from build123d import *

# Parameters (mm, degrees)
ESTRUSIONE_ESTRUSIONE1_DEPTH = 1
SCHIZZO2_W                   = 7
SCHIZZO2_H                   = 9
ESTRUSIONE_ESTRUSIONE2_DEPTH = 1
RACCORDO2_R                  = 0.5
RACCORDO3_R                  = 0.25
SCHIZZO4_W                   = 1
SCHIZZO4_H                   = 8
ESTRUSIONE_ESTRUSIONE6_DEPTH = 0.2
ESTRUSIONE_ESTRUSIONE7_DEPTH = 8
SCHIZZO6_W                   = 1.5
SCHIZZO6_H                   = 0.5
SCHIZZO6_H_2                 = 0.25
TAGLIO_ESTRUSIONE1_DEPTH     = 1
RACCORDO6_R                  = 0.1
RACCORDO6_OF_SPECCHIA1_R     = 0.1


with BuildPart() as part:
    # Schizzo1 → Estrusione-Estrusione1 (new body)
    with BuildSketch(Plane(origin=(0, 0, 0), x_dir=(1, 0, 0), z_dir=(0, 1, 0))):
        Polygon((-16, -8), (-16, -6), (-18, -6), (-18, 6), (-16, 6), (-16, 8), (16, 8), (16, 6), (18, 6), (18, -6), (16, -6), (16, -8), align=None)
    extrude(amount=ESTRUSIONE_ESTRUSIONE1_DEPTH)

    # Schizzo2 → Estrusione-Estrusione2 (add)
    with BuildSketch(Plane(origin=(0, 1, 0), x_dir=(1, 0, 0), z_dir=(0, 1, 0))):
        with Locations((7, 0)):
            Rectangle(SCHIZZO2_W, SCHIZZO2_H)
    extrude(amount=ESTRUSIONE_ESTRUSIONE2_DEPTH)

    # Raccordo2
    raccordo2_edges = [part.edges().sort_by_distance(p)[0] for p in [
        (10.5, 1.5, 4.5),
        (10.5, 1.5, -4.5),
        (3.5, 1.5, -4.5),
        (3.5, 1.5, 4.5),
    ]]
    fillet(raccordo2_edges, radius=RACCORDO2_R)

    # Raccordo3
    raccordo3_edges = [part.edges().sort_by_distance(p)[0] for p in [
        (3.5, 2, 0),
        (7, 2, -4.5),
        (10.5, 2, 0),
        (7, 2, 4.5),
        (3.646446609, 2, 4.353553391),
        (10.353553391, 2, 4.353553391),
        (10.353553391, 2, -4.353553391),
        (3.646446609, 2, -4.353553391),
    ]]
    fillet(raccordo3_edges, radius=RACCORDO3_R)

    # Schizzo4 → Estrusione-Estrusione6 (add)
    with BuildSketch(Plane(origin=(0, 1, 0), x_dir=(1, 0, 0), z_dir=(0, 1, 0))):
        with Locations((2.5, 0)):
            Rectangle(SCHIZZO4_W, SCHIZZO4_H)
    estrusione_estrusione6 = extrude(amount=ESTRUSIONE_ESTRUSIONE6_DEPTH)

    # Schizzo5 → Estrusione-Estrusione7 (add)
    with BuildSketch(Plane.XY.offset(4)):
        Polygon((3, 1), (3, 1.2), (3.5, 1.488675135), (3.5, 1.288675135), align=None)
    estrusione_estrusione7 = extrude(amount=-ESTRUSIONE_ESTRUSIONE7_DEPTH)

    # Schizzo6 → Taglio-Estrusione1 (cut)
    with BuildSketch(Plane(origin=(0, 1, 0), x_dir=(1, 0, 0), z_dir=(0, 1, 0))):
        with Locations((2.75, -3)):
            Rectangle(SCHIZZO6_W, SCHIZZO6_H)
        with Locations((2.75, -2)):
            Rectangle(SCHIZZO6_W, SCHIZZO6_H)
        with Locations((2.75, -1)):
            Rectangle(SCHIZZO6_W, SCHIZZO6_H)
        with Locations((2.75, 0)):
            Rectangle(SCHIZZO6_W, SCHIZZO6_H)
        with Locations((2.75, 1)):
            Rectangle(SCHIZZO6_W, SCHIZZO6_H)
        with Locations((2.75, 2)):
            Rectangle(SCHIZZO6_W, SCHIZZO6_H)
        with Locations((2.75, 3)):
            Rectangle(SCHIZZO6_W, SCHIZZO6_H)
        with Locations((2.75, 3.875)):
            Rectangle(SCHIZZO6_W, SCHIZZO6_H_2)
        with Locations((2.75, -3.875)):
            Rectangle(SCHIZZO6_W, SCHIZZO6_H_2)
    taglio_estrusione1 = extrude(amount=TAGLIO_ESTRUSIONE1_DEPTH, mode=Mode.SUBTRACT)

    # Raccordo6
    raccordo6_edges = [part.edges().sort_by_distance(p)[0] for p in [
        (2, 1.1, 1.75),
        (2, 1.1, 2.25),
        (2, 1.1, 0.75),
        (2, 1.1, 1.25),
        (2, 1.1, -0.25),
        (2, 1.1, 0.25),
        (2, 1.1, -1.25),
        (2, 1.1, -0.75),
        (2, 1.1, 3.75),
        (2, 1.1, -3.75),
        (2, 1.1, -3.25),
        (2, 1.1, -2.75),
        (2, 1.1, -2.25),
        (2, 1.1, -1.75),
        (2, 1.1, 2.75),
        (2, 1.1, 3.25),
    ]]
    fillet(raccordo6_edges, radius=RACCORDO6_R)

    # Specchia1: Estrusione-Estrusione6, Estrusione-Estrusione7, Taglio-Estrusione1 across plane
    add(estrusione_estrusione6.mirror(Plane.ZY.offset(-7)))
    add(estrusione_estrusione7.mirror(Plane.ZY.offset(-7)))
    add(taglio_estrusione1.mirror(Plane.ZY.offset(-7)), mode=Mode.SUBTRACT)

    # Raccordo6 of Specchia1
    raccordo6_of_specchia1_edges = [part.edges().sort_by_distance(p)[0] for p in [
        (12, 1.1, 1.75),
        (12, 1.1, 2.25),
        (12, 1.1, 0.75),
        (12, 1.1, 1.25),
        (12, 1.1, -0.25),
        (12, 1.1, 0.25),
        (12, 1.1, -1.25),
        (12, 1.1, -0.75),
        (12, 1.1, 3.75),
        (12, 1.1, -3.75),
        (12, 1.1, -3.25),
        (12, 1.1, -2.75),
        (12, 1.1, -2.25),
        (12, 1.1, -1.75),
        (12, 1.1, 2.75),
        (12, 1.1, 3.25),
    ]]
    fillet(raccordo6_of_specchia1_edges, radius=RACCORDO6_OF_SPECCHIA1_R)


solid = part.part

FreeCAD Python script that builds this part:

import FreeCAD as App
import Part
import Sketcher
Q = App.Units.Quantity


def edges_at(feature, points):
    """Names of the edges that pass closest to the given points."""
    edges = feature.Shape.Edges
    near = lambda p: min(range(len(edges)), key=lambda i: edges[i].distToShape(Part.Vertex(*p))[0])
    return sorted({f"Edge{near(p) + 1}" for p in points})

doc = App.newDocument("Part")
body = doc.addObject("PartDesign::Body", "Body")

sketch1 = body.newObject("Sketcher::SketchObject", "Sketch")
sketch1.AttachmentSupport = (doc.getObject("XZ_Plane"), [""])
sketch1.MapMode = "FlatFace"
sketch1.addGeometry([
    Part.LineSegment(App.Vector(-16, 6, 0), App.Vector(-16, 8, 0)),
    Part.LineSegment(App.Vector(-16, 8, 0), App.Vector(16, 8, 0)),
    Part.LineSegment(App.Vector(16, 8, 0), App.Vector(16, 6, 0)),
    Part.LineSegment(App.Vector(16, 6, 0), App.Vector(18, 6, 0)),
    Part.LineSegment(App.Vector(18, 6, 0), App.Vector(18, -6, 0)),
    Part.LineSegment(App.Vector(18, -6, 0), App.Vector(16, -6, 0)),
    Part.LineSegment(App.Vector(16, -6, 0), App.Vector(16, -8, 0)),
    Part.LineSegment(App.Vector(16, -8, 0), App.Vector(-16, -8, 0)),
    Part.LineSegment(App.Vector(-16, -8, 0), App.Vector(-16, -6, 0)),
    Part.LineSegment(App.Vector(-16, -6, 0), App.Vector(-18, -6, 0)),
    Part.LineSegment(App.Vector(-18, -6, 0), App.Vector(-18, 6, 0)),
    Part.LineSegment(App.Vector(-18, 6, 0), App.Vector(-16, 6, 0)),
], False)
sketch1.addConstraint([
    Sketcher.Constraint("Coincident", 0, 2, 1, 1),
    Sketcher.Constraint("Coincident", 1, 2, 2, 1),
    Sketcher.Constraint("Coincident", 2, 2, 3, 1),
    Sketcher.Constraint("Coincident", 3, 2, 4, 1),
    Sketcher.Constraint("Coincident", 4, 2, 5, 1),
    Sketcher.Constraint("Coincident", 5, 2, 6, 1),
    Sketcher.Constraint("Coincident", 6, 2, 7, 1),
    Sketcher.Constraint("Coincident", 7, 2, 8, 1),
    Sketcher.Constraint("Coincident", 8, 2, 9, 1),
    Sketcher.Constraint("Coincident", 9, 2, 10, 1),
    Sketcher.Constraint("Coincident", 10, 2, 11, 1),
    Sketcher.Constraint("Coincident", 11, 2, 0, 1),
    Sketcher.Constraint("Vertical", 0),
    Sketcher.Constraint("Horizontal", 1),
    Sketcher.Constraint("Vertical", 2),
    Sketcher.Constraint("Horizontal", 3),
    Sketcher.Constraint("Vertical", 4),
    Sketcher.Constraint("Horizontal", 5),
    Sketcher.Constraint("Vertical", 6),
    Sketcher.Constraint("Horizontal", 7),
    Sketcher.Constraint("Vertical", 8),
    Sketcher.Constraint("Horizontal", 9),
    Sketcher.Constraint("Vertical", 10),
    Sketcher.Constraint("Horizontal", 11),
    Sketcher.Constraint("Symmetric", 0, 2, 6, 2, -1, 1),
    Sketcher.Constraint("Symmetric", 2, 2, 8, 2, -1, 1),
    Sketcher.Constraint("Symmetric", 4, 2, 10, 2, -1, 1),
    Sketcher.Constraint("Symmetric", 5, 2, 8, 2, -2),
    Sketcher.Constraint("Equal", 11, 0),
    Sketcher.Constraint("DistanceX", 1, 1, 1, 2, Q("32 mm")),
    Sketcher.Constraint("DistanceX", 3, 1, 3, 2, Q("2 mm")),
    Sketcher.Constraint("DistanceY", 4, 2, 4, 1, Q("12 mm")),
])
pad1 = body.newObject("PartDesign::Pad", "Pad")
pad1.Profile = sketch1
pad1.Length = 1
pad1.Reversed = True

sketch2 = body.newObject("Sketcher::SketchObject", "Sketch001")
sketch2.AttachmentSupport = (doc.getObject("XZ_Plane"), [""])
sketch2.MapMode = "FlatFace"
sketch2.AttachmentOffset = App.Placement(App.Vector(0, 0, -1), App.Rotation())
sketch2.addGeometry([
    Part.LineSegment(App.Vector(4, -4, 0), App.Vector(4, 4, 0)),
    Part.LineSegment(App.Vector(4, 4, 0), App.Vector(10, 4, 0)),
    Part.LineSegment(App.Vector(10, 4, 0), App.Vector(10, -4, 0)),
    Part.LineSegment(App.Vector(10, -4, 0), App.Vector(4, -4, 0)),
], False)
sketch2.addConstraint([
    Sketcher.Constraint("Coincident", 0, 2, 1, 1),
    Sketcher.Constraint("Coincident", 1, 2, 2, 1),
    Sketcher.Constraint("Coincident", 2, 2, 3, 1),
    Sketcher.Constraint("Coincident", 3, 2, 0, 1),
    Sketcher.Constraint("Vertical", 0),
    Sketcher.Constraint("Horizontal", 1),
    Sketcher.Constraint("Vertical", 2),
    Sketcher.Constraint("Horizontal", 3),
    Sketcher.Constraint("DistanceX", 1, 1, 1, 2, Q("7 mm")),
    Sketcher.Constraint("DistanceY", 0, 1, 0, 2, Q("9 mm")),
    Sketcher.Constraint("DistanceX", -1, 1, 0, 2, Q("3.5 mm")),
    Sketcher.Constraint("DistanceY", -1, 1, 0, 2, Q("4.5 mm")),
])
pad2 = body.newObject("PartDesign::Pad", "Pad001")
pad2.Profile = sketch2
pad2.Length = 1
pad2.Reversed = True
doc.recompute()

fillet = body.newObject("PartDesign::Fillet", "Fillet")
fillet.Base = (pad2, edges_at(pad2, [
    (10.5, 1.5, 4.5),
    (10.5, 1.5, -4.5),
    (3.5, 1.5, -4.5),
    (3.5, 1.5, 4.5),
]))
fillet.Radius = 0.5
doc.recompute()

fillet2 = body.newObject("PartDesign::Fillet", "Fillet001")
fillet2.Base = (fillet, edges_at(fillet, [
    (3.5, 2, 0),
    (7, 2, -4.5),
    (10.5, 2, 0),
    (7, 2, 4.5),
    (3.646, 2, 4.354),
    (10.354, 2, 4.354),
    (10.354, 2, -4.354),
    (3.646, 2, -4.354),
]))
fillet2.Radius = 0.25

sketch3 = body.newObject("Sketcher::SketchObject", "Sketch002")
sketch3.AttachmentSupport = (doc.getObject("XZ_Plane"), [""])
sketch3.MapMode = "FlatFace"
sketch3.AttachmentOffset = App.Placement(App.Vector(0, 0, -1), App.Rotation())
sketch3.addGeometry([
    Part.LineSegment(App.Vector(2, -4, 0), App.Vector(2, 4, 0)),
    Part.LineSegment(App.Vector(2, 4, 0), App.Vector(3, 4, 0)),
    Part.LineSegment(App.Vector(3, 4, 0), App.Vector(3, -4, 0)),
    Part.LineSegment(App.Vector(3, -4, 0), App.Vector(2, -4, 0)),
], False)
sketch3.addConstraint([
    Sketcher.Constraint("Coincident", 0, 2, 1, 1),
    Sketcher.Constraint("Coincident", 1, 2, 2, 1),
    Sketcher.Constraint("Coincident", 2, 2, 3, 1),
    Sketcher.Constraint("Coincident", 3, 2, 0, 1),
    Sketcher.Constraint("Vertical", 0),
    Sketcher.Constraint("Horizontal", 1),
    Sketcher.Constraint("Vertical", 2),
    Sketcher.Constraint("Horizontal", 3),
    Sketcher.Constraint("DistanceX", 1, 1, 1, 2, Q("1 mm")),
    Sketcher.Constraint("DistanceY", 0, 1, 0, 2, Q("8 mm")),
    Sketcher.Constraint("DistanceX", -1, 1, 0, 2, Q("2 mm")),
    Sketcher.Constraint("DistanceY", -1, 1, 0, 2, Q("4 mm")),
])
pad3 = body.newObject("PartDesign::Pad", "Pad002")
pad3.Profile = sketch3
pad3.Length = 0.2
pad3.Reversed = True

sketch4 = body.newObject("Sketcher::SketchObject", "Sketch003")
sketch4.AttachmentSupport = (doc.getObject("XY_Plane"), [""])
sketch4.MapMode = "FlatFace"
sketch4.AttachmentOffset = App.Placement(App.Vector(0, 0, 4), App.Rotation())
sketch4.addGeometry([
    Part.LineSegment(App.Vector(3, 1.2, 0), App.Vector(3, 1, 0)),
    Part.LineSegment(App.Vector(3, 1, 0), App.Vector(3.5, 1.29, 0)),
    Part.LineSegment(App.Vector(3.5, 1.29, 0), App.Vector(3.5, 1.49, 0)),
    Part.LineSegment(App.Vector(3.5, 1.49, 0), App.Vector(3, 1.2, 0)),
], False)
sketch4.addConstraint([
    Sketcher.Constraint("Coincident", 0, 2, 1, 1),
    Sketcher.Constraint("Coincident", 1, 2, 2, 1),
    Sketcher.Constraint("Coincident", 2, 2, 3, 1),
    Sketcher.Constraint("Coincident", 3, 2, 0, 1),
    Sketcher.Constraint("Vertical", 0),
    Sketcher.Constraint("Vertical", 2),
    Sketcher.Constraint("Parallel", 1, 3),
    Sketcher.Constraint("Angle", 1, Q("30 deg")),
    Sketcher.Constraint("DistanceY", 0, 2, 0, 1, Q("0.2 mm")),
    Sketcher.Constraint("DistanceX", -1, 1, 0, 2, Q("3 mm")),
    Sketcher.Constraint("DistanceY", -1, 1, 0, 2, Q("1 mm")),
    Sketcher.Constraint("DistanceX", -1, 1, 1, 2, Q("3.5 mm")),
])
pad4 = body.newObject("PartDesign::Pad", "Pad003")
pad4.Profile = sketch4
pad4.Length = 8
pad4.Reversed = True

sketch5 = body.newObject("Sketcher::SketchObject", "Sketch004")
sketch5.AttachmentSupport = (doc.getObject("XZ_Plane"), [""])
sketch5.MapMode = "FlatFace"
sketch5.AttachmentOffset = App.Placement(App.Vector(0, 0, -1), App.Rotation())
sketch5.addGeometry([
    Part.LineSegment(App.Vector(2, 2.75, 0), App.Vector(2, 3.25, 0)),
    Part.LineSegment(App.Vector(2, 3.25, 0), App.Vector(3.5, 3.25, 0)),
    Part.LineSegment(App.Vector(3.5, 3.25, 0), App.Vector(3.5, 2.75, 0)),
    Part.LineSegment(App.Vector(3.5, 2.75, 0), App.Vector(2, 2.75, 0)),
    Part.LineSegment(App.Vector(2, 1.75, 0), App.Vector(2, 2.25, 0)),
    Part.LineSegment(App.Vector(2, 2.25, 0), App.Vector(3.5, 2.25, 0)),
    Part.LineSegment(App.Vector(3.5, 2.25, 0), App.Vector(3.5, 1.75, 0)),
    Part.LineSegment(App.Vector(3.5, 1.75, 0), App.Vector(2, 1.75, 0)),
    Part.LineSegment(App.Vector(2, 0.75, 0), App.Vector(2, 1.25, 0)),
    Part.LineSegment(App.Vector(2, 1.25, 0), App.Vector(3.5, 1.25, 0)),
    Part.LineSegment(App.Vector(3.5, 1.25, 0), App.Vector(3.5, 0.75, 0)),
    Part.LineSegment(App.Vector(3.5, 0.75, 0), App.Vector(2, 0.75, 0)),
    Part.LineSegment(App.Vector(2, -0.25, 0), App.Vector(2, 0.25, 0)),
    Part.LineSegment(App.Vector(2, 0.25, 0), App.Vector(3.5, 0.25, 0)),
    Part.LineSegment(App.Vector(3.5, 0.25, 0), App.Vector(3.5, -0.25, 0)),
    Part.LineSegment(App.Vector(3.5, -0.25, 0), App.Vector(2, -0.25, 0)),
    Part.LineSegment(App.Vector(2, -1.25, 0), App.Vector(2, -0.75, 0)),
    Part.LineSegment(App.Vector(2, -0.75, 0), App.Vector(3.5, -0.75, 0)),
    Part.LineSegment(App.Vector(3.5, -0.75, 0), App.Vector(3.5, -1.25, 0)),
    Part.LineSegment(App.Vector(3.5, -1.25, 0), App.Vector(2, -1.25, 0)),
    Part.LineSegment(App.Vector(2, -2.25, 0), App.Vector(2, -1.75, 0)),
    Part.LineSegment(App.Vector(2, -1.75, 0), App.Vector(3.5, -1.75, 0)),
    Part.LineSegment(App.Vector(3.5, -1.75, 0), App.Vector(3.5, -2.25, 0)),
    Part.LineSegment(App.Vector(3.5, -2.25, 0), App.Vector(2, -2.25, 0)),
    Part.LineSegment(App.Vector(2, -3.25, 0), App.Vector(2, -2.75, 0)),
    Part.LineSegment(App.Vector(2, -2.75, 0), App.Vector(3.5, -2.75, 0)),
    Part.LineSegment(App.Vector(3.5, -2.75, 0), App.Vector(3.5, -3.25, 0)),
    Part.LineSegment(App.Vector(3.5, -3.25, 0), App.Vector(2, -3.25, 0)),
    Part.LineSegment(App.Vector(2, -4, 0), App.Vector(2, -3.75, 0)),
    Part.LineSegment(App.Vector(2, -3.75, 0), App.Vector(3.5, -3.75, 0)),
    Part.LineSegment(App.Vector(3.5, -3.75, 0), App.Vector(3.5, -4, 0)),
    Part.LineSegment(App.Vector(3.5, -4, 0), App.Vector(2, -4, 0)),
    Part.LineSegment(App.Vector(2, 3.75, 0), App.Vector(2, 4, 0)),
    Part.LineSegment(App.Vector(2, 4, 0), App.Vector(3.5, 4, 0)),
    Part.LineSegment(App.Vector(3.5, 4, 0), App.Vector(3.5, 3.75, 0)),
    Part.LineSegment(App.Vector(3.5, 3.75, 0), App.Vector(2, 3.75, 0)),
], False)
sketch5.addConstraint([
    Sketcher.Constraint("Coincident", 0, 2, 1, 1),
    Sketcher.Constraint("Coincident", 1, 2, 2, 1),
    Sketcher.Constraint("Coincident", 2, 2, 3, 1),
    Sketcher.Constraint("Coincident", 3, 2, 0, 1),
    Sketcher.Constraint("Coincident", 4, 2, 5, 1),
    Sketcher.Constraint("Coincident", 5, 2, 6, 1),
    Sketcher.Constraint("Coincident", 6, 2, 7, 1),
    Sketcher.Constraint("Coincident", 7, 2, 4, 1),
    Sketcher.Constraint("Coincident", 8, 2, 9, 1),
    Sketcher.Constraint("Coincident", 9, 2, 10, 1),
    Sketcher.Constraint("Coincident", 10, 2, 11, 1),
    Sketcher.Constraint("Coincident", 11, 2, 8, 1),
    Sketcher.Constraint("Coincident", 12, 2, 13, 1),
    Sketcher.Constraint("Coincident", 13, 2, 14, 1),
    Sketcher.Constraint("Coincident", 14, 2, 15, 1),
    Sketcher.Constraint("Coincident", 15, 2, 12, 1),
    Sketcher.Constraint("Coincident", 16, 2, 17, 1),
    Sketcher.Constraint("Coincident", 17, 2, 18, 1),
    Sketcher.Constraint("Coincident", 18, 2, 19, 1),
    Sketcher.Constraint("Coincident", 19, 2, 16, 1),
    Sketcher.Constraint("Coincident", 20, 2, 21, 1),
    Sketcher.Constraint("Coincident", 21, 2, 22, 1),
    Sketcher.Constraint("Coincident", 22, 2, 23, 1),
    Sketcher.Constraint("Coincident", 23, 2, 20, 1),
    Sketcher.Constraint("Coincident", 24, 2, 25, 1),
    Sketcher.Constraint("Coincident", 25, 2, 26, 1),
    Sketcher.Constraint("Coincident", 26, 2, 27, 1),
    Sketcher.Constraint("Coincident", 27, 2, 24, 1),
    Sketcher.Constraint("Coincident", 28, 2, 29, 1),
    Sketcher.Constraint("Coincident", 29, 2, 30, 1),
    Sketcher.Constraint("Coincident", 30, 2, 31, 1),
    Sketcher.Constraint("Coincident", 31, 2, 28, 1),
    Sketcher.Constraint("Coincident", 32, 2, 33, 1),
    Sketcher.Constraint("Coincident", 33, 2, 34, 1),
    Sketcher.Constraint("Coincident", 34, 2, 35, 1),
    Sketcher.Constraint("Coincident", 35, 2, 32, 1),
    Sketcher.Constraint("Vertical", 0),
    Sketcher.Constraint("Horizontal", 1),
    Sketcher.Constraint("Vertical", 2),
    Sketcher.Constraint("Horizontal", 3),
    Sketcher.Constraint("Vertical", 4),
    Sketcher.Constraint("Horizontal", 5),
    Sketcher.Constraint("Vertical", 6),
    Sketcher.Constraint("Horizontal", 7),
    Sketcher.Constraint("Vertical", 8),
    Sketcher.Constraint("Horizontal", 9),
    Sketcher.Constraint("Vertical", 10),
    Sketcher.Constraint("Horizontal", 11),
    Sketcher.Constraint("Vertical", 12),
    Sketcher.Constraint("Horizontal", 13),
    Sketcher.Constraint("Vertical", 14),
    Sketcher.Constraint("Horizontal", 15),
    Sketcher.Constraint("Vertical", 16),
    Sketcher.Constraint("Horizontal", 17),
    Sketcher.Constraint("Vertical", 18),
    Sketcher.Constraint("Horizontal", 19),
    Sketcher.Constraint("Vertical", 20),
    Sketcher.Constraint("Horizontal", 21),
    Sketcher.Constraint("Vertical", 22),
    Sketcher.Constraint("Horizontal", 23),
    Sketcher.Constraint("Vertical", 24),
    Sketcher.Constraint("Horizontal", 25),
    Sketcher.Constraint("Vertical", 26),
    Sketcher.Constraint("Horizontal", 27),
    Sketcher.Constraint("Vertical", 28),
    Sketcher.Constraint("Horizontal", 29),
    Sketcher.Constraint("Vertical", 30),
    Sketcher.Constraint("Horizontal", 31),
    Sketcher.Constraint("Vertical", 32),
    Sketcher.Constraint("Horizontal", 33),
    Sketcher.Constraint("Vertical", 34),
    Sketcher.Constraint("Horizontal", 35),
    Sketcher.Constraint("Symmetric", 11, 2, 16, 2, -1),
    Sketcher.Constraint("Symmetric", 9, 2, 18, 2, -1),
    Sketcher.Constraint("Symmetric", 7, 2, 20, 2, -1),
    Sketcher.Constraint("Symmetric", 5, 2, 22, 2, -1),
    Sketcher.Constraint("Symmetric", 3, 2, 24, 2, -1),
    Sketcher.Constraint("Symmetric", 1, 2, 26, 2, -1),
    Sketcher.Constraint("Symmetric", 31, 2, 32, 2, -1),
    Sketcher.Constraint("Symmetric", 29, 2, 34, 2, -1),
    Sketcher.Constraint("Vertical", 3, 2, 4, 2),
    Sketcher.Constraint("Vertical", 2, 2, 5, 2),
    Sketcher.Constraint("Vertical", 7, 2, 8, 2),
    Sketcher.Constraint("Vertical", 6, 2, 9, 2),
    Sketcher.Constraint("Vertical", 11, 2, 12, 2),
    Sketcher.Constraint("Vertical", 10, 2, 13, 2),
    Sketcher.Constraint("Vertical", 27, 2, 28, 2),
    Sketcher.Constraint("Vertical", 26, 2, 29, 2),
    Sketcher.Constraint("Equal", 2, 4),
    Sketcher.Constraint("Equal", 6, 8),
    Sketcher.Constraint("Equal", 10, 12),
    Sketcher.Constraint("DistanceX", 1, 1, 1, 2, Q("1.5 mm")),
    Sketcher.Constraint("DistanceY", 0, 1, 0, 2, Q("0.5 mm")),
    Sketcher.Constraint("DistanceX", -1, 1, 0, 2, Q("2 mm")),
    Sketcher.Constraint("DistanceY", 30, 2, -1, 1, Q("4 mm")),
    Sketcher.Constraint("DistanceY", 4, 2, 0, 2, Q("1 mm")),
    Sketcher.Constraint("DistanceY", 8, 2, 4, 2, Q("1 mm")),
    Sketcher.Constraint("DistanceY", 12, 2, 8, 2, Q("1 mm")),
    Sketcher.Constraint("DistanceY", 16, 2, 12, 2, Q("1 mm")),
    Sketcher.Constraint("DistanceY", 28, 2, 24, 2, Q("1 mm")),
])
pocket1 = body.newObject("PartDesign::Pocket", "Pocket")
pocket1.Profile = sketch5
pocket1.Length = 1
doc.recompute()

fillet3 = body.newObject("PartDesign::Fillet", "Fillet002")
fillet3.Base = (pocket1, edges_at(pocket1, [
    (2, 1.1, 1.75),
    (2, 1.1, 2.25),
    (2, 1.1, 0.75),
    (2, 1.1, 1.25),
    (2, 1.1, -0.25),
    (2, 1.1, 0.25),
    (2, 1.1, -1.25),
    (2, 1.1, -0.75),
    (2, 1.1, 3.75),
    (2, 1.1, -3.75),
    (2, 1.1, -3.25),
    (2, 1.1, -2.75),
    (2, 1.1, -2.25),
    (2, 1.1, -1.75),
    (2, 1.1, 2.75),
    (2, 1.1, 3.25),
]))
fillet3.Radius = 0.1
doc.recompute()

datumplane = body.newObject("PartDesign::Plane", "DatumPlane")
datumplane.AttachmentSupport = (doc.getObject("YZ_Plane"), [""])
datumplane.MapMode = "FlatFace"
datumplane.AttachmentOffset = App.Placement(App.Vector(0, 0, 7), App.Rotation())
mirrored = body.newObject("PartDesign::Mirrored", "Mirrored")
mirrored.Originals = [pad3, pad4, pocket1]
mirrored.MirrorPlane = (datumplane, [""])
body.Tip = mirrored
doc.recompute()

fillet4 = body.newObject("PartDesign::Fillet", "Fillet003")
fillet4.Base = (mirrored, edges_at(mirrored, [
    (12, 1.1, 1.75),
    (12, 1.1, 2.25),
    (12, 1.1, 0.75),
    (12, 1.1, 1.25),
    (12, 1.1, -0.25),
    (12, 1.1, 0.25),
    (12, 1.1, -1.25),
    (12, 1.1, -0.75),
    (12, 1.1, 3.75),
    (12, 1.1, -3.75),
    (12, 1.1, -3.25),
    (12, 1.1, -2.75),
    (12, 1.1, -2.25),
    (12, 1.1, -1.75),
    (12, 1.1, 2.75),
    (12, 1.1, 3.25),
]))
fillet4.Radius = 0.1

doc.recompute()
